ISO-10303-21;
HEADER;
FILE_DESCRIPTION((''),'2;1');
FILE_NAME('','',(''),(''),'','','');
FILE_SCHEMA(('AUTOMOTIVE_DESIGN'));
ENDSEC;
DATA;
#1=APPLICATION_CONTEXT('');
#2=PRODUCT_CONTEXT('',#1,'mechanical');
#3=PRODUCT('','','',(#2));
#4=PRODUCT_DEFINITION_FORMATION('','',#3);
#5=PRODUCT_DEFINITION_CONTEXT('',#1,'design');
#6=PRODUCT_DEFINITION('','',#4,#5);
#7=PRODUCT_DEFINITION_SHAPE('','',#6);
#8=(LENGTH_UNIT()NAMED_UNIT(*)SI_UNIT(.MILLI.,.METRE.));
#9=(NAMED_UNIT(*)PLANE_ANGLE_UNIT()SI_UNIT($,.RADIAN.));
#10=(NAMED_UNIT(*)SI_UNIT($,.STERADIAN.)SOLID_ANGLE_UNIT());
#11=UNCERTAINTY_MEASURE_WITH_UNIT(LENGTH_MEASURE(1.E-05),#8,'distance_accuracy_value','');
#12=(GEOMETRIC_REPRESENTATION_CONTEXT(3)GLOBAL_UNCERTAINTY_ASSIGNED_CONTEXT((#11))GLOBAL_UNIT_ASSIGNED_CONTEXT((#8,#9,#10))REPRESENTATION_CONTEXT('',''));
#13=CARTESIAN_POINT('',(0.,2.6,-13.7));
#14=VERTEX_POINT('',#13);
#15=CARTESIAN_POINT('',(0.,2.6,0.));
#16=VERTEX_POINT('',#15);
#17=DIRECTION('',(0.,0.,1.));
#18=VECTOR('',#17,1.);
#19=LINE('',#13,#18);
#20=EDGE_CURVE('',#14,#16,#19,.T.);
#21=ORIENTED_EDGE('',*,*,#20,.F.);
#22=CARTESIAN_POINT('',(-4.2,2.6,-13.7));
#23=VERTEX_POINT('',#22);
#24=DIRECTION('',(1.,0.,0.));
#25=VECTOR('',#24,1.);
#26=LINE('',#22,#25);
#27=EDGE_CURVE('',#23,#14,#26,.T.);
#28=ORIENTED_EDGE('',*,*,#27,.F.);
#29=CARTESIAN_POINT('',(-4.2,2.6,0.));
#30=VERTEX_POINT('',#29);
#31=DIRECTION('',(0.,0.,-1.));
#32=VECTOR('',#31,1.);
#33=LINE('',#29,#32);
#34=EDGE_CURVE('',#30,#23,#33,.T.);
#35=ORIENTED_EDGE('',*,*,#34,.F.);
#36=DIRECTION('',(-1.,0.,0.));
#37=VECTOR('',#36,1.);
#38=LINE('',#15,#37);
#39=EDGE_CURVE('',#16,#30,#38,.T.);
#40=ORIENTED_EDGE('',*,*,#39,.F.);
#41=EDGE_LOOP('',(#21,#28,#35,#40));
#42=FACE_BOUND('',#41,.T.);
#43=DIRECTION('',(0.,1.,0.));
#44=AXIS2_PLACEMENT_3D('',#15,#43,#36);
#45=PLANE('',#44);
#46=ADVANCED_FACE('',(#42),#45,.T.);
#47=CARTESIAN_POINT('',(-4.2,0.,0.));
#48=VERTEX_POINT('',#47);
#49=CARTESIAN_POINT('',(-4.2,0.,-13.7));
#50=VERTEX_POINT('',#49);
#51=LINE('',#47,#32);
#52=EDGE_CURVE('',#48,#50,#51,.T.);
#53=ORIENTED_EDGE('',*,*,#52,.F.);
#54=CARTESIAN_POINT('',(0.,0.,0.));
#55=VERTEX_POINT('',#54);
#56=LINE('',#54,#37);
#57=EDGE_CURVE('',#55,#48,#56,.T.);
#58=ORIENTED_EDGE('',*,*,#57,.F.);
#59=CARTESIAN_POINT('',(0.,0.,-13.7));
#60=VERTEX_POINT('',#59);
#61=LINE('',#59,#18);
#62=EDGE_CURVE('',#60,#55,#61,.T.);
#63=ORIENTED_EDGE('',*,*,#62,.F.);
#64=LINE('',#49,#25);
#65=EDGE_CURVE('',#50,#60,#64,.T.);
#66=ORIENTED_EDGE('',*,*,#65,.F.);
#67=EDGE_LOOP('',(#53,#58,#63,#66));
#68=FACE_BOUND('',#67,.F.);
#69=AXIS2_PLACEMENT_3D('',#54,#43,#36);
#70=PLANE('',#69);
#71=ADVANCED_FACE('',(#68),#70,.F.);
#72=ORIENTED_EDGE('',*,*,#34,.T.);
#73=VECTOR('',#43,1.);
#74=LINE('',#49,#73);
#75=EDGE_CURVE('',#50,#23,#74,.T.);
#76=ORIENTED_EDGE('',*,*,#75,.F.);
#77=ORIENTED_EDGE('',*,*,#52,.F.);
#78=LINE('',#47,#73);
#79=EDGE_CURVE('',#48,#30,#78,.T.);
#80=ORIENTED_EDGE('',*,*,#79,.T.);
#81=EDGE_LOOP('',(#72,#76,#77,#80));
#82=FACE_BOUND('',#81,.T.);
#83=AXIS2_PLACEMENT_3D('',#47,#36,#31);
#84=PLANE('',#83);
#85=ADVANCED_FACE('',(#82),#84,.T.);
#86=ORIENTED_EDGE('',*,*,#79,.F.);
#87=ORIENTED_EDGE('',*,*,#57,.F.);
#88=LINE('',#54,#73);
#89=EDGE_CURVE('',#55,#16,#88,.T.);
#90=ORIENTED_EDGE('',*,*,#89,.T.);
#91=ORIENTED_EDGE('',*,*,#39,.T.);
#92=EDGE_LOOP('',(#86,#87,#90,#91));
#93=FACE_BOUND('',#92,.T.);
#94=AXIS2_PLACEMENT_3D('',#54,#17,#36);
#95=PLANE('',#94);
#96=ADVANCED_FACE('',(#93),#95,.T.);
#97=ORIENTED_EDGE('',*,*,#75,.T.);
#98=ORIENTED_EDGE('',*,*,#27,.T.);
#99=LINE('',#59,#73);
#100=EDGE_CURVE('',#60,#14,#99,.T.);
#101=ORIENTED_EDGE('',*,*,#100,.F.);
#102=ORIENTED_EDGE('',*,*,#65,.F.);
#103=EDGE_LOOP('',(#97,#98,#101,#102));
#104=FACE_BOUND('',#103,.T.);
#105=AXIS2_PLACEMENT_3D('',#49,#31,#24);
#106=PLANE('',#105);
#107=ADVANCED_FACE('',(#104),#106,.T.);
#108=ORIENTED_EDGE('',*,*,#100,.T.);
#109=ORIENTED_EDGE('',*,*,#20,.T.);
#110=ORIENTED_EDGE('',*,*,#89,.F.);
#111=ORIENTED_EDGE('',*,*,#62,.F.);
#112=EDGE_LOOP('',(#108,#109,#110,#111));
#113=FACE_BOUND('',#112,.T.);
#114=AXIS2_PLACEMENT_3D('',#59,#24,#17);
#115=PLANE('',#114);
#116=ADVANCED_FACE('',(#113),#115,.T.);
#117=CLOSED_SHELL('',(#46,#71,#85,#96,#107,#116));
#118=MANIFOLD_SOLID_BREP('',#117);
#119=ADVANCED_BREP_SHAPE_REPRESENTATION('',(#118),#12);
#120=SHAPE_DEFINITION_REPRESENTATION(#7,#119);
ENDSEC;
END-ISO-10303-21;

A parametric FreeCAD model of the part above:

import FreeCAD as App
import Part
import Sketcher

V = App.Vector

doc = App.newDocument("Part")
body = doc.addObject("PartDesign::Body", "Body")

# Sketch on XZ plane
sketch1 = doc.addObject("Sketcher::SketchObject", "Sketch")
body.addObject(sketch1)
sketch1.AttachmentSupport = (doc.XZ_Plane, [""])
sketch1.MapMode = "FlatFace"
sketch1.addGeometry([
    Part.LineSegment(V(-4.2, 0, 0), V(0, 0, 0)),
    Part.LineSegment(V(0, 0, 0), V(0, -13.7, 0)),
    Part.LineSegment(V(0, -13.7, 0), V(-4.2, -13.7, 0)),
    Part.LineSegment(V(-4.2, -13.7, 0), V(-4.2, 0, 0)),
], False)
sketch1.addConstraint([
    Sketcher.Constraint("Coincident", 0, 2, 1, 1),
    Sketcher.Constraint("Coincident", 1, 2, 2, 1),
    Sketcher.Constraint("Coincident", 2, 2, 3, 1),
    Sketcher.Constraint("Coincident", 3, 2, 0, 1),
    Sketcher.Constraint("Horizontal", 0),
    Sketcher.Constraint("Vertical", 1),
    Sketcher.Constraint("Horizontal", 2),
    Sketcher.Constraint("Vertical", 3),
    Sketcher.Constraint("Coincident", 0, 2, -1, 1),
    Sketcher.Constraint("DistanceX", 0, 1, 0, 2, 4.2),
    Sketcher.Constraint("DistanceY", 1, 2, 1, 1, 13.7),
])
pad1 = doc.addObject("PartDesign::Pad", "Pad")
body.addObject(pad1)
pad1.Profile = sketch1
pad1.Length = 2.6
pad1.Reversed = True

doc.recompute()
